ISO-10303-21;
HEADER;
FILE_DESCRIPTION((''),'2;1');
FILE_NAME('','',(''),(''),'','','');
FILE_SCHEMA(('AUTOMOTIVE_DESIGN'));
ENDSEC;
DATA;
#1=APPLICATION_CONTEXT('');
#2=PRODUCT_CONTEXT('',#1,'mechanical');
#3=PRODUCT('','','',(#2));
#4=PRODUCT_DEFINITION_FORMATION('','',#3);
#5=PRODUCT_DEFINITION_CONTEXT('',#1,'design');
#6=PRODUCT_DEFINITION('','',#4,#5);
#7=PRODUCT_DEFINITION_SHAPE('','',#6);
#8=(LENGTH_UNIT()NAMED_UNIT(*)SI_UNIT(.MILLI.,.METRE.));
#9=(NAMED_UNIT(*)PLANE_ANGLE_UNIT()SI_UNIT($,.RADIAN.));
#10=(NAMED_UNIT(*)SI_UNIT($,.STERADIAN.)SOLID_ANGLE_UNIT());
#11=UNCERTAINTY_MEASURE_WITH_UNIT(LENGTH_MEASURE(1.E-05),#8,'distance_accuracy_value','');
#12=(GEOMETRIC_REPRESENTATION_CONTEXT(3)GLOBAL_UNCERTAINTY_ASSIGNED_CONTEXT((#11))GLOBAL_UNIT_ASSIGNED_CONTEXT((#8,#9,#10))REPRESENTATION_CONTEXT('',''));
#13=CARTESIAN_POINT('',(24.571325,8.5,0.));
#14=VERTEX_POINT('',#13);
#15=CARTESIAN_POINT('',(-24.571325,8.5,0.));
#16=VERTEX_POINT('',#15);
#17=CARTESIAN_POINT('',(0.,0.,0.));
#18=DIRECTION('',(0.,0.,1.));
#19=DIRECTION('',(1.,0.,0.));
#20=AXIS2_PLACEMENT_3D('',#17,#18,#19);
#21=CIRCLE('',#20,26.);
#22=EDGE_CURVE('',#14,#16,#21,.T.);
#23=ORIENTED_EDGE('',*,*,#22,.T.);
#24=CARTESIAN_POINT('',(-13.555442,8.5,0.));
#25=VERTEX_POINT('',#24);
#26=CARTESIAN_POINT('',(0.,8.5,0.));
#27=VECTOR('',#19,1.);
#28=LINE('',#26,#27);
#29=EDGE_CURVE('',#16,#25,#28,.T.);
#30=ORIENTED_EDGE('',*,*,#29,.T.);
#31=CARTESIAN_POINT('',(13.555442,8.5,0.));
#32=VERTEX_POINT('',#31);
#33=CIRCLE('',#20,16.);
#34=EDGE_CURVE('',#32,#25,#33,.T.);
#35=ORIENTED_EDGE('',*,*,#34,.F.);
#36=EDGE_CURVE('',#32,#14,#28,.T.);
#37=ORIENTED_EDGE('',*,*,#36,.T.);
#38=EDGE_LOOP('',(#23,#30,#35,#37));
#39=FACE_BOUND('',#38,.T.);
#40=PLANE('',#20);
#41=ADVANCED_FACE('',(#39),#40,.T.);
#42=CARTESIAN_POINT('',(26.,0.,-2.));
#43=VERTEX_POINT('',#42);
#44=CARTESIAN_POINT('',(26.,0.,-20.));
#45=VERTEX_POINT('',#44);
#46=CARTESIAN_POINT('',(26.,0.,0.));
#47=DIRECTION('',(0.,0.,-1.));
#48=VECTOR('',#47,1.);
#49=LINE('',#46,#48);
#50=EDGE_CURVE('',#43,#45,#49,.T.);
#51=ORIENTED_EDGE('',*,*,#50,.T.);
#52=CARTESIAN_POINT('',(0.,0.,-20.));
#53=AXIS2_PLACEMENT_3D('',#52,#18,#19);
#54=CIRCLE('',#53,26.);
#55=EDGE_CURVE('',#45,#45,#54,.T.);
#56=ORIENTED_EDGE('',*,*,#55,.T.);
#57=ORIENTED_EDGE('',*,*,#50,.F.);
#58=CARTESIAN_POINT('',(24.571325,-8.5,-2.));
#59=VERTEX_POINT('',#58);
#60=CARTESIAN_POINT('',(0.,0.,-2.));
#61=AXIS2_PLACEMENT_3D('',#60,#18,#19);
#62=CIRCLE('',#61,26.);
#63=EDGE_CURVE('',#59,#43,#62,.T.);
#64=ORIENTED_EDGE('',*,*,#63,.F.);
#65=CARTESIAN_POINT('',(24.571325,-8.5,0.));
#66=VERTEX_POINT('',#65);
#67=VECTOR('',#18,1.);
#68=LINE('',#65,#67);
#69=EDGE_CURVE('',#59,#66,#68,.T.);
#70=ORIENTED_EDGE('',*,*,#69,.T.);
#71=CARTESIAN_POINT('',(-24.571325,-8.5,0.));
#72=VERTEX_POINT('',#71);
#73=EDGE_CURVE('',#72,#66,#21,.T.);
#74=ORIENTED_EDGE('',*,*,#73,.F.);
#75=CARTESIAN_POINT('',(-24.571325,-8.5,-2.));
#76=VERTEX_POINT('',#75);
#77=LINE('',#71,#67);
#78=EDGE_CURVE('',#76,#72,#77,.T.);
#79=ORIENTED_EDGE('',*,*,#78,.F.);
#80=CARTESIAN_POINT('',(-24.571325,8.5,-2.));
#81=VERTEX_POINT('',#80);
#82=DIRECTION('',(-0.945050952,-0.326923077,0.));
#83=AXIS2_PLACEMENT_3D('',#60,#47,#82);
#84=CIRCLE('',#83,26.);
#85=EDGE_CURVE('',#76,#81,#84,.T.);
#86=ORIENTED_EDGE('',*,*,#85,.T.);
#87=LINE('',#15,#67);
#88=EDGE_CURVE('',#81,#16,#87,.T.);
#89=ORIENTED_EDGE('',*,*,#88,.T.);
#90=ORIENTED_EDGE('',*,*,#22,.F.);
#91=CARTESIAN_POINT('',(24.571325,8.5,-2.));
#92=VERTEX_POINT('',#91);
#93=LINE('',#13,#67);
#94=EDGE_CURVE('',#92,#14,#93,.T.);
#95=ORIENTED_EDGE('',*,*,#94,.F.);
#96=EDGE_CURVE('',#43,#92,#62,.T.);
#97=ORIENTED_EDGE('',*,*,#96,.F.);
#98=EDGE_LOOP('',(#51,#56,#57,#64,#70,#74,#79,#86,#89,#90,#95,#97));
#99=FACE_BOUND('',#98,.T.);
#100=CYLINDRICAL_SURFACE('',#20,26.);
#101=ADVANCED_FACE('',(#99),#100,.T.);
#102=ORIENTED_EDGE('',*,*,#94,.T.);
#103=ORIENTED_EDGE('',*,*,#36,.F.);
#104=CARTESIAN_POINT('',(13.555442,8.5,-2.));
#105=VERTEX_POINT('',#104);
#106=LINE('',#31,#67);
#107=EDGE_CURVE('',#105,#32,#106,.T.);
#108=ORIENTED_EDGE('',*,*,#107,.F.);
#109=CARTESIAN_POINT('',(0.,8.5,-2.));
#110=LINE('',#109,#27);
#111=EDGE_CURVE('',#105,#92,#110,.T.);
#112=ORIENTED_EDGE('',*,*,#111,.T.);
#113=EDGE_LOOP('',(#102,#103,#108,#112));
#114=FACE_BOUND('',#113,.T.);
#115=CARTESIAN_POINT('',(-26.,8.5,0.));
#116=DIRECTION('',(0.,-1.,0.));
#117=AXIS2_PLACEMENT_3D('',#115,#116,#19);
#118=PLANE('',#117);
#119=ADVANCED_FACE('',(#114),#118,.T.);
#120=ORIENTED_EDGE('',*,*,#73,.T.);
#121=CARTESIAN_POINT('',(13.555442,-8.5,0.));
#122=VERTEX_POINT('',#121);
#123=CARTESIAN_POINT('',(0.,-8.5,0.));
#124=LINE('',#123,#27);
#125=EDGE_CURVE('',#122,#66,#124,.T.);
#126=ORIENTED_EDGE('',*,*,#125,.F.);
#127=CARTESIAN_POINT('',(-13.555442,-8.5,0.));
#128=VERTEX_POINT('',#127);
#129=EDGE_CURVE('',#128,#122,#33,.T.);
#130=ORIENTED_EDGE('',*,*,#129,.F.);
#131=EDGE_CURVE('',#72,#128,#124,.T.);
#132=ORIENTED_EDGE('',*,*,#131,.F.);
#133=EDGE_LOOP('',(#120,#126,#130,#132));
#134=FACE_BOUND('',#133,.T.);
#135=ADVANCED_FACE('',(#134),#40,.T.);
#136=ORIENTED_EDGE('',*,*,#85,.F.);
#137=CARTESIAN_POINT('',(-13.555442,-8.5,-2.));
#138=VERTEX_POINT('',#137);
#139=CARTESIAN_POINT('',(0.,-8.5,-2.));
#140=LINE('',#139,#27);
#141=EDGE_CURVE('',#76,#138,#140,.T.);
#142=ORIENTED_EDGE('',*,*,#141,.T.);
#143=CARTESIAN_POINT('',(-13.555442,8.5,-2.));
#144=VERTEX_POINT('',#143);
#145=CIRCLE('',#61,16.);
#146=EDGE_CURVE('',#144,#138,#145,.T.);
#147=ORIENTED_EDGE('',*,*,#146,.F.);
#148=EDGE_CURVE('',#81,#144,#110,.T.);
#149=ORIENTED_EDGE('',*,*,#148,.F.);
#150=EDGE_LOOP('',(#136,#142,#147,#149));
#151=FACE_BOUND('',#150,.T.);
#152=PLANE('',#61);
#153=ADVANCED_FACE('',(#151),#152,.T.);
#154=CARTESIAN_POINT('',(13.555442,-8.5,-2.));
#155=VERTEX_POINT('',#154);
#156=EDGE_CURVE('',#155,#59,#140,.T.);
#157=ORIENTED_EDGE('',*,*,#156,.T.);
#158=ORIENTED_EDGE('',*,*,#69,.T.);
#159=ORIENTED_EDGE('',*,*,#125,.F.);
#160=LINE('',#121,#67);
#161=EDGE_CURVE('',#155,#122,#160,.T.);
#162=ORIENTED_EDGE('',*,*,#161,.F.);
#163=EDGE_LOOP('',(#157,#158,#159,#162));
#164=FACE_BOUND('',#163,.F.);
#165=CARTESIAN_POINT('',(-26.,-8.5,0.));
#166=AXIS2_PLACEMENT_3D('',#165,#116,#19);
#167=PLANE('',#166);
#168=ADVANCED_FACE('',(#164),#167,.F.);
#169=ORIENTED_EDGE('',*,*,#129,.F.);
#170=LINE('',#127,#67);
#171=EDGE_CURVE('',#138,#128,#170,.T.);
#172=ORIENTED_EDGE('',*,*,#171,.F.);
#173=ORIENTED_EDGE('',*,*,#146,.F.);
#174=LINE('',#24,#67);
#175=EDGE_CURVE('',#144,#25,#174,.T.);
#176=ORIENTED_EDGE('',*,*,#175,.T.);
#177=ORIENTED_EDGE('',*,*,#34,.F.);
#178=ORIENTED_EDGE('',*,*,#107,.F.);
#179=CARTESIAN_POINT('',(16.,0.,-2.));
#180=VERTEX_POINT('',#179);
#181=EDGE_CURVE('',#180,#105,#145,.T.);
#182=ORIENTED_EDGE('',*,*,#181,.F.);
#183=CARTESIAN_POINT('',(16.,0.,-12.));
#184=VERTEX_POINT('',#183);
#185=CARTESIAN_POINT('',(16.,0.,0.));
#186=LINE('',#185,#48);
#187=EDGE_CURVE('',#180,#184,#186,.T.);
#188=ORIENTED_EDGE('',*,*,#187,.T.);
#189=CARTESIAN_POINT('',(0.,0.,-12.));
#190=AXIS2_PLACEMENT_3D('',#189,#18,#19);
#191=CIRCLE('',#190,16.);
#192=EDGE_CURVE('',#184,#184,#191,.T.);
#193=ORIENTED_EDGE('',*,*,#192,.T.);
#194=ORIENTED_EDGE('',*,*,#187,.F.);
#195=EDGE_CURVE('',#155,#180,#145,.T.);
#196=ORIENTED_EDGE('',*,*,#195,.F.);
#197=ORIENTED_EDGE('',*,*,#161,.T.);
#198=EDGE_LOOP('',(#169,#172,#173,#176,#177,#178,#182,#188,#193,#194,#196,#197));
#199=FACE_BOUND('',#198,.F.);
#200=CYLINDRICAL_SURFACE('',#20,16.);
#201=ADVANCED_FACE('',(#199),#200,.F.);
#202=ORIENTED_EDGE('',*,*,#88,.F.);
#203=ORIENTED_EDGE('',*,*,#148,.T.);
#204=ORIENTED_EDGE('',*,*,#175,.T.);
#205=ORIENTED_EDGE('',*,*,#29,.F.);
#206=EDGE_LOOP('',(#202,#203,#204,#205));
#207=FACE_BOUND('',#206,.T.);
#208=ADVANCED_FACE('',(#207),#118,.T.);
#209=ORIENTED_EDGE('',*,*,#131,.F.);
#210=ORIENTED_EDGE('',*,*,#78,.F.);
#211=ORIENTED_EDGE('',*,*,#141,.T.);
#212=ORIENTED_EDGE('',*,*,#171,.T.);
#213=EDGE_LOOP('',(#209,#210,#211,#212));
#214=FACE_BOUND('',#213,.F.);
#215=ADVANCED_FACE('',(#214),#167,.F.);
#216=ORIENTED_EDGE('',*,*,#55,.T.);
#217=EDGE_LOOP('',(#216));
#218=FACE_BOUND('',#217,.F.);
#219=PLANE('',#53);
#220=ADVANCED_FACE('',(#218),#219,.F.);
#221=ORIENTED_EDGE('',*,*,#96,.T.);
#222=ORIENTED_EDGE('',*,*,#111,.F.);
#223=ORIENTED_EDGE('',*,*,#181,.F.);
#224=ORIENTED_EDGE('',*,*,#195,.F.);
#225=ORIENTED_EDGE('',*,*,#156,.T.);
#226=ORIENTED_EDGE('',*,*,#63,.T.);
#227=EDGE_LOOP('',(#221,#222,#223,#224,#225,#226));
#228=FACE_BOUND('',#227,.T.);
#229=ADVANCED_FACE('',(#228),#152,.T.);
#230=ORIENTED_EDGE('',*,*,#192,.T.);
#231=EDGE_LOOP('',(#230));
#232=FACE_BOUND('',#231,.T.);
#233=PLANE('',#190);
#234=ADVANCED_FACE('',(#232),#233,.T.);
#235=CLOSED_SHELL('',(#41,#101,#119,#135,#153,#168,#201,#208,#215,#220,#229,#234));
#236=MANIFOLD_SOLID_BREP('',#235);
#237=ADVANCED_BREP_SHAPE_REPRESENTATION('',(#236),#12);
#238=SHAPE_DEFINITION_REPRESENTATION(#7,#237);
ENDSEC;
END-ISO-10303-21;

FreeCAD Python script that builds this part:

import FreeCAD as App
import Part
import Sketcher

doc = App.newDocument("Part")
body = doc.addObject("PartDesign::Body", "Body")

# Sketch on XY plane
sketch1 = body.newObject("Sketcher::SketchObject", "Sketch")
sketch1.AttachmentSupport = (doc.getObject("XY_Plane"), [""])
sketch1.MapMode = "FlatFace"
sketch1.addGeometry(Part.Circle(App.Vector(0, 0, 0), App.Vector(0, 0, 1), 26), False)
sketch1.addConstraint(Sketcher.Constraint("Coincident", 0, 3, -1, 1))
sketch1.addConstraint(Sketcher.Constraint("Diameter", 0, 52.0))
pad1 = body.newObject("PartDesign::Pad", "Pad")
pad1.Profile = sketch1
pad1.Length = 20
pad1.Reversed = True

# Sketch on XY plane
sketch2 = body.newObject("Sketcher::SketchObject", "Sketch001")
sketch2.AttachmentSupport = (doc.getObject("XY_Plane"), [""])
sketch2.MapMode = "FlatFace"
sketch2.addGeometry(Part.Circle(App.Vector(0, 0, 0), App.Vector(0, 0, 1), 16), False)
sketch2.addConstraint(Sketcher.Constraint("Coincident", 0, 3, -1, 1))
sketch2.addConstraint(Sketcher.Constraint("Diameter", 0, 32.0))
pocket1 = body.newObject("PartDesign::Pocket", "Pocket")
pocket1.Profile = sketch2
pocket1.Length = 12

# Sketch on XY plane
sketch3 = body.newObject("Sketcher::SketchObject", "Sketch002")
sketch3.AttachmentSupport = (doc.getObject("XY_Plane"), [""])
sketch3.MapMode = "FlatFace"
sketch3.addGeometry(Part.LineSegment(App.Vector(-26, 8, 0), App.Vector(-26, -8, 0)), False)
sketch3.addGeometry(Part.LineSegment(App.Vector(-26, -8, 0), App.Vector(26, -8, 0)), False)
sketch3.addGeometry(Part.LineSegment(App.Vector(26, -8, 0), App.Vector(26, 8, 0)), False)
sketch3.addGeometry(Part.LineSegment(App.Vector(26, 8, 0), App.Vector(-26, 8, 0)), False)
sketch3.addConstraint(Sketcher.Constraint("Coincident", 0, 2, 1, 1))
sketch3.addConstraint(Sketcher.Constraint("Coincident", 1, 2, 2, 1))
sketch3.addConstraint(Sketcher.Constraint("Coincident", 2, 2, 3, 1))
sketch3.addConstraint(Sketcher.Constraint("Coincident", 3, 2, 0, 1))
sketch3.addConstraint(Sketcher.Constraint("Vertical", 0))
sketch3.addConstraint(Sketcher.Constraint("Horizontal", 1))
sketch3.addConstraint(Sketcher.Constraint("Vertical", 2))
sketch3.addConstraint(Sketcher.Constraint("Horizontal", 3))
sketch3.addConstraint(Sketcher.Constraint("Symmetric", 0, 2, 2, 2, -1, 1))
sketch3.addConstraint(Sketcher.Constraint("DistanceX", 1, 1, 1, 2, 52.0))
sketch3.addConstraint(Sketcher.Constraint("DistanceY", 0, 2, 0, 1, 17.0))
pocket2 = body.newObject("PartDesign::Pocket", "Pocket001")
pocket2.Profile = sketch3
pocket2.Length = 2

doc.recompute()
